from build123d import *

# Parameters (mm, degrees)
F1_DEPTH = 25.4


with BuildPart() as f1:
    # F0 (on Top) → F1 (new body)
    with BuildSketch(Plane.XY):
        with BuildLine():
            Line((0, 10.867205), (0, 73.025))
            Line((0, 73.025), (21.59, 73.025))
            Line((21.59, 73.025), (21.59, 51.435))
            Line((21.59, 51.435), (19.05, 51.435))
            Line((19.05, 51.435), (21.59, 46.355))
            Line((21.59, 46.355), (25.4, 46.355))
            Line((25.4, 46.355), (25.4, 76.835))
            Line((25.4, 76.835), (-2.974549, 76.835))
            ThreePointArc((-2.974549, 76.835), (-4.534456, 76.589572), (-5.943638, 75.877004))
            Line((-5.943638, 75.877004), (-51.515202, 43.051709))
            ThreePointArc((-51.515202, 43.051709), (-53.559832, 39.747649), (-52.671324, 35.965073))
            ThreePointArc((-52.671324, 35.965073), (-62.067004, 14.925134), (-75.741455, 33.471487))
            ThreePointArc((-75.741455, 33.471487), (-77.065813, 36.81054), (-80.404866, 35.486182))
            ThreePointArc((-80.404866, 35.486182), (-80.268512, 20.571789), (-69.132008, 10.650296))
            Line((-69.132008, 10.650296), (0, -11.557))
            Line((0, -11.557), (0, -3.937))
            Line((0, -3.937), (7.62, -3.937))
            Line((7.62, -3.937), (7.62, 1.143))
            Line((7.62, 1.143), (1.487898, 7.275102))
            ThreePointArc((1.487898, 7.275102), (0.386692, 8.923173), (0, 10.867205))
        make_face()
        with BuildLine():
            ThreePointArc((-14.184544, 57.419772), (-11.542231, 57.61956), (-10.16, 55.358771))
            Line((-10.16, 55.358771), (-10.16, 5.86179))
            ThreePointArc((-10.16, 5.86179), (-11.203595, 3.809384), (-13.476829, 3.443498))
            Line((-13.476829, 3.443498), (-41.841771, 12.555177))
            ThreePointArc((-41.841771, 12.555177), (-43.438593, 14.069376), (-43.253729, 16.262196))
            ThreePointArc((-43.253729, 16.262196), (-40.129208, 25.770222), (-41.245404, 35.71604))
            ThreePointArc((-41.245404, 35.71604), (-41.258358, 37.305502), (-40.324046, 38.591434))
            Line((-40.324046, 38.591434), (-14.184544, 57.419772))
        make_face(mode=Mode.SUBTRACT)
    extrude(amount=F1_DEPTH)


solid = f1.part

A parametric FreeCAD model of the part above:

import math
import FreeCAD as App
import Part
import Sketcher
from FreeCAD import Vector
Q = App.Units.Quantity

doc = App.newDocument("Part")
body = doc.addObject("PartDesign::Body", "Body")

# Sketch on XY plane
sketch1 = body.newObject("Sketcher::SketchObject", "Sketch")
sketch1.AttachmentSupport = (doc.getObject("XY_Plane"), [""])
sketch1.MapMode = "FlatFace"
sketch1.addGeometry(Part.LineSegment(Vector(0, 10.867205, 0), Vector(0, 73.025, 0)), False)
sketch1.addGeometry(Part.LineSegment(Vector(0, 73.025, 0), Vector(21.59, 73.025, 0)), False)
sketch1.addGeometry(Part.LineSegment(Vector(21.59, 73.025, 0), Vector(21.59, 51.435, 0)), False)
sketch1.addGeometry(Part.LineSegment(Vector(21.59, 51.435, 0), Vector(19.05, 51.435, 0)), False)
sketch1.addGeometry(Part.LineSegment(Vector(19.05, 51.435, 0), Vector(21.59, 46.355, 0)), False)
sketch1.addGeometry(Part.LineSegment(Vector(21.59, 46.355, 0), Vector(25.4, 46.355, 0)), False)
sketch1.addGeometry(Part.LineSegment(Vector(25.4, 46.355, 0), Vector(25.4, 76.835, 0)), False)
sketch1.addGeometry(Part.LineSegment(Vector(25.4, 76.835, 0), Vector(-2.974549, 76.835, 0)), False)
sketch1.addGeometry(Part.ArcOfCircle(Part.Circle(Vector(-2.974546, 71.754986, 0), Vector(0, 0, 1), 5.080014), math.radians(90.000038), math.radians(125.765233)), False)
sketch1.addGeometry(Part.LineSegment(Vector(-5.943638, 75.877004, 0), Vector(-51.515202, 43.051709, 0)), False)
sketch1.addGeometry(Part.ArcOfCircle(Part.Circle(Vector(-48.546114, 38.929705, 0), Vector(0, 0, 1), 5.08), math.radians(125.765284), math.radians(215.70337)), False)
sketch1.addGeometry(Part.ArcOfCircle(Part.Circle(Vector(-63.5, 28.182914, 0), Vector(0, 0, 1), 13.335), math.radians(156.634614), math.radians(395.703369)), False)
sketch1.addGeometry(Part.ArcOfCircle(Part.Circle(Vector(-78.073161, 34.478834, 0), Vector(0, 0, 1), 2.54), math.radians(-23.365395), math.radians(156.634605)), False)
sketch1.addGeometry(Part.ArcOfCircle(Part.Circle(Vector(-63.5, 28.182914, 0), Vector(0, 0, 1), 18.414999), math.radians(156.63461), math.radians(252.19141)), False)
sketch1.addGeometry(Part.LineSegment(Vector(-69.132008, 10.650296, 0), Vector(0, -11.557, 0)), False)
sketch1.addGeometry(Part.LineSegment(Vector(0, -11.557, 0), Vector(0, -3.937, 0)), False)
sketch1.addGeometry(Part.LineSegment(Vector(0, -3.937, 0), Vector(7.62, -3.937, 0)), False)
sketch1.addGeometry(Part.LineSegment(Vector(7.62, -3.937, 0), Vector(7.62, 1.143, 0)), False)
sketch1.addGeometry(Part.LineSegment(Vector(7.62, 1.143, 0), Vector(1.487898, 7.275102, 0)), False)
sketch1.addGeometry(Part.ArcOfCircle(Part.Circle(Vector(5.08, 10.867205, 0), Vector(0, 0, 1), 5.08), math.radians(179.999999), math.radians(225.000007)), False)
sketch1.addGeometry(Part.LineSegment(Vector(-40.324046, 38.591434, 0), Vector(-14.184544, 57.419772, 0)), False)
sketch1.addGeometry(Part.ArcOfCircle(Part.Circle(Vector(-12.7, 55.35877, 0), Vector(0, 0, 1), 2.54), math.radians(0.000019), math.radians(125.765287)), False)
sketch1.addGeometry(Part.LineSegment(Vector(-10.16, 55.358771, 0), Vector(-10.16, 5.86179, 0)), False)
sketch1.addGeometry(Part.ArcOfCircle(Part.Circle(Vector(-12.7, 5.861791, 0), Vector(0, 0, 1), 2.54), math.radians(-107.808587), math.radians(-0.000013)), False)
sketch1.addGeometry(Part.LineSegment(Vector(-13.476829, 3.443498, 0), Vector(-41.841771, 12.555177, 0)), False)
sketch1.addGeometry(Part.ArcOfCircle(Part.Circle(Vector(-41.064943, 14.97347, 0), Vector(0, 0, 1), 2.54), math.radians(149.511028), math.radians(252.191417)), False)
sketch1.addGeometry(Part.ArcOfCircle(Part.Circle(Vector(-63.500004, 28.182915, 0), Vector(0, 0, 1), 23.495004), math.radians(-30.488972), math.radians(18.700828)), False)
sketch1.addGeometry(Part.ArcOfCircle(Part.Circle(Vector(-38.8395, 36.530432, 0), Vector(0, 0, 1), 2.540001), math.radians(125.765309), math.radians(198.700818)), False)
sketch1.addConstraint(Sketcher.Constraint("Coincident", 0, 2, 1, 1))
sketch1.addConstraint(Sketcher.Constraint("Coincident", 1, 2, 2, 1))
sketch1.addConstraint(Sketcher.Constraint("Coincident", 2, 2, 3, 1))
sketch1.addConstraint(Sketcher.Constraint("Coincident", 3, 2, 4, 1))
sketch1.addConstraint(Sketcher.Constraint("Coincident", 4, 2, 5, 1))
sketch1.addConstraint(Sketcher.Constraint("Coincident", 5, 2, 6, 1))
sketch1.addConstraint(Sketcher.Constraint("Coincident", 6, 2, 7, 1))
sketch1.addConstraint(Sketcher.Constraint("Tangent", 7, 2, 8, 1))
sketch1.addConstraint(Sketcher.Constraint("Tangent", 8, 2, 9, 1))
sketch1.addConstraint(Sketcher.Constraint("Tangent", 9, 2, 10, 1))
sketch1.addConstraint(Sketcher.Constraint("Tangent", 10, 2, 11, 2))
sketch1.addConstraint(Sketcher.Constraint("Tangent", 11, 1, 12, 1))
sketch1.addConstraint(Sketcher.Constraint("Tangent", 12, 2, 13, 1))
sketch1.addConstraint(Sketcher.Constraint("Tangent", 13, 2, 14, 1))
sketch1.addConstraint(Sketcher.Constraint("Coincident", 14, 2, 15, 1))
sketch1.addConstraint(Sketcher.Constraint("Coincident", 15, 2, 16, 1))
sketch1.addConstraint(Sketcher.Constraint("Coincident", 16, 2, 17, 1))
sketch1.addConstraint(Sketcher.Constraint("Coincident", 17, 2, 18, 1))
sketch1.addConstraint(Sketcher.Constraint("Tangent", 18, 2, 19, 2))
sketch1.addConstraint(Sketcher.Constraint("Tangent", 19, 1, 0, 1))
sketch1.addConstraint(Sketcher.Constraint("Tangent", 20, 2, 21, 2))
sketch1.addConstraint(Sketcher.Constraint("Tangent", 21, 1, 22, 1))
sketch1.addConstraint(Sketcher.Constraint("Tangent", 22, 2, 23, 2))
sketch1.addConstraint(Sketcher.Constraint("Tangent", 23, 1, 24, 1))
sketch1.addConstraint(Sketcher.Constraint("Tangent", 24, 2, 25, 2))
sketch1.addConstraint(Sketcher.Constraint("Tangent", 25, 1, 26, 1))
sketch1.addConstraint(Sketcher.Constraint("Tangent", 26, 2, 27, 2))
sketch1.addConstraint(Sketcher.Constraint("Tangent", 27, 1, 20, 1))
sketch1.addConstraint(Sketcher.Constraint("Vertical", 0))
sketch1.addConstraint(Sketcher.Constraint("Horizontal", 1))
sketch1.addConstraint(Sketcher.Constraint("Vertical", 2))
sketch1.addConstraint(Sketcher.Constraint("Horizontal", 3))
sketch1.addConstraint(Sketcher.Constraint("Horizontal", 5))
sketch1.addConstraint(Sketcher.Constraint("Vertical", 6))
sketch1.addConstraint(Sketcher.Constraint("Horizontal", 7))
sketch1.addConstraint(Sketcher.Constraint("Vertical", 15))
sketch1.addConstraint(Sketcher.Constraint("Horizontal", 16))
sketch1.addConstraint(Sketcher.Constraint("Vertical", 17))
sketch1.addConstraint(Sketcher.Constraint("Vertical", 22))
sketch1.addConstraint(Sketcher.Constraint("Coincident", 13, 3, 11, 3))
sketch1.addConstraint(Sketcher.Constraint("Coincident", 26, 3, 11, 3))
sketch1.addConstraint(Sketcher.Constraint("Equal", 10, 19))
sketch1.addConstraint(Sketcher.Constraint("Equal", 12, 21))
sketch1.addConstraint(Sketcher.Constraint("Equal", 21, 23))
sketch1.addConstraint(Sketcher.Constraint("Equal", 23, 25))
sketch1.addConstraint(Sketcher.Constraint("Equal", 25, 27))
sketch1.addConstraint(Sketcher.Constraint("PointOnObject", 0, 2, -2))
sketch1.addConstraint(Sketcher.Constraint("PointOnObject", 14, 2, -2))
sketch1.addConstraint(Sketcher.Constraint("Parallel", 9, 20))
sketch1.addConstraint(Sketcher.Constraint("Parallel", 14, 24))
sketch1.addConstraint(Sketcher.Constraint("Vertical", 2, 2, 4, 2))
sketch1.addConstraint(Sketcher.Constraint("Equal", 1, 2))
sketch1.addConstraint(Sketcher.Constraint("Equal", 16, 15))
sketch1.addConstraint(Sketcher.Constraint("Radius", 10, Q("0.2 in")))
sketch1.addConstraint(Sketcher.Constraint("Radius", 12, Q("0.1 in")))
sketch1.addConstraint(Sketcher.Constraint("DistanceX", 3, 2, 3, 1, Q("0.1 in")))
sketch1.addConstraint(Sketcher.Constraint("DistanceX", 16, 1, 16, 2, Q("0.3 in")))
sketch1.addConstraint(Sketcher.Constraint("DistanceY", 6, 1, 6, 2, Q("1.2 in")))
sketch1.addConstraint(Sketcher.Constraint("DistanceY", 17, 1, 17, 2, Q("0.2 in")))
sketch1.addConstraint(Sketcher.Constraint("DistanceX", -1, 1, 5, 2, Q("1 in")))
sketch1.addConstraint(Sketcher.Constraint("Angle", 18, Q("135 deg")))
sketch1.addConstraint(Sketcher.Constraint("Radius", 11, Q("0.525 in")))
sketch1.addConstraint(Sketcher.Constraint("Radius", 26, Q("0.9250001 in")))
sketch1.addConstraint(Sketcher.Constraint("DistanceX", 11, 3, 21, 3, Q("2 in")))
sketch1.addConstraint(Sketcher.Constraint("DistanceY", 2, 2, 6, 2, Q("1 in")))
sketch1.addConstraint(Sketcher.Constraint("DistanceX", 1, 1, 1, 2, Q("0.85 in")))
sketch1.addConstraint(Sketcher.Constraint("DistanceX", 11, 3, -1, 1, Q("2.5 in")))
sketch1.addConstraint(Sketcher.Constraint("DistanceY", 14, 2, 4, 2, Q("2.28 in")))
sketch1.addConstraint(Sketcher.Constraint("DistanceY", 22, 2, 22, 1, Q("1.9487 in")))
sketch1.addConstraint(Sketcher.Constraint("DistanceY", -1, 1, 0, 2, Q("2.875 in")))
sketch1.addConstraint(Sketcher.Constraint("Radius", 8, 5.080014))
sketch1.addConstraint(Sketcher.Constraint("DistanceY", 10, 2, 27, 1, Q("0.1034 in")))
sketch1.addConstraint(Sketcher.Constraint("DistanceX", 7, 2, 7, 1, 28.374549))
sketch1.addConstraint(Sketcher.Constraint("DistanceX", 27, 3, -1, 1, 38.8395))
sketch1.addConstraint(Sketcher.Constraint("DistanceY", 19, 3, 10, 3, 28.0625))
sketch1.addConstraint(Sketcher.Constraint("DistanceX", 12, 3, -1, 1, 78.073161))
pad1 = body.newObject("PartDesign::Pad", "Pad")
pad1.Profile = sketch1
pad1.Length = Q("1 in")

doc.recompute()
